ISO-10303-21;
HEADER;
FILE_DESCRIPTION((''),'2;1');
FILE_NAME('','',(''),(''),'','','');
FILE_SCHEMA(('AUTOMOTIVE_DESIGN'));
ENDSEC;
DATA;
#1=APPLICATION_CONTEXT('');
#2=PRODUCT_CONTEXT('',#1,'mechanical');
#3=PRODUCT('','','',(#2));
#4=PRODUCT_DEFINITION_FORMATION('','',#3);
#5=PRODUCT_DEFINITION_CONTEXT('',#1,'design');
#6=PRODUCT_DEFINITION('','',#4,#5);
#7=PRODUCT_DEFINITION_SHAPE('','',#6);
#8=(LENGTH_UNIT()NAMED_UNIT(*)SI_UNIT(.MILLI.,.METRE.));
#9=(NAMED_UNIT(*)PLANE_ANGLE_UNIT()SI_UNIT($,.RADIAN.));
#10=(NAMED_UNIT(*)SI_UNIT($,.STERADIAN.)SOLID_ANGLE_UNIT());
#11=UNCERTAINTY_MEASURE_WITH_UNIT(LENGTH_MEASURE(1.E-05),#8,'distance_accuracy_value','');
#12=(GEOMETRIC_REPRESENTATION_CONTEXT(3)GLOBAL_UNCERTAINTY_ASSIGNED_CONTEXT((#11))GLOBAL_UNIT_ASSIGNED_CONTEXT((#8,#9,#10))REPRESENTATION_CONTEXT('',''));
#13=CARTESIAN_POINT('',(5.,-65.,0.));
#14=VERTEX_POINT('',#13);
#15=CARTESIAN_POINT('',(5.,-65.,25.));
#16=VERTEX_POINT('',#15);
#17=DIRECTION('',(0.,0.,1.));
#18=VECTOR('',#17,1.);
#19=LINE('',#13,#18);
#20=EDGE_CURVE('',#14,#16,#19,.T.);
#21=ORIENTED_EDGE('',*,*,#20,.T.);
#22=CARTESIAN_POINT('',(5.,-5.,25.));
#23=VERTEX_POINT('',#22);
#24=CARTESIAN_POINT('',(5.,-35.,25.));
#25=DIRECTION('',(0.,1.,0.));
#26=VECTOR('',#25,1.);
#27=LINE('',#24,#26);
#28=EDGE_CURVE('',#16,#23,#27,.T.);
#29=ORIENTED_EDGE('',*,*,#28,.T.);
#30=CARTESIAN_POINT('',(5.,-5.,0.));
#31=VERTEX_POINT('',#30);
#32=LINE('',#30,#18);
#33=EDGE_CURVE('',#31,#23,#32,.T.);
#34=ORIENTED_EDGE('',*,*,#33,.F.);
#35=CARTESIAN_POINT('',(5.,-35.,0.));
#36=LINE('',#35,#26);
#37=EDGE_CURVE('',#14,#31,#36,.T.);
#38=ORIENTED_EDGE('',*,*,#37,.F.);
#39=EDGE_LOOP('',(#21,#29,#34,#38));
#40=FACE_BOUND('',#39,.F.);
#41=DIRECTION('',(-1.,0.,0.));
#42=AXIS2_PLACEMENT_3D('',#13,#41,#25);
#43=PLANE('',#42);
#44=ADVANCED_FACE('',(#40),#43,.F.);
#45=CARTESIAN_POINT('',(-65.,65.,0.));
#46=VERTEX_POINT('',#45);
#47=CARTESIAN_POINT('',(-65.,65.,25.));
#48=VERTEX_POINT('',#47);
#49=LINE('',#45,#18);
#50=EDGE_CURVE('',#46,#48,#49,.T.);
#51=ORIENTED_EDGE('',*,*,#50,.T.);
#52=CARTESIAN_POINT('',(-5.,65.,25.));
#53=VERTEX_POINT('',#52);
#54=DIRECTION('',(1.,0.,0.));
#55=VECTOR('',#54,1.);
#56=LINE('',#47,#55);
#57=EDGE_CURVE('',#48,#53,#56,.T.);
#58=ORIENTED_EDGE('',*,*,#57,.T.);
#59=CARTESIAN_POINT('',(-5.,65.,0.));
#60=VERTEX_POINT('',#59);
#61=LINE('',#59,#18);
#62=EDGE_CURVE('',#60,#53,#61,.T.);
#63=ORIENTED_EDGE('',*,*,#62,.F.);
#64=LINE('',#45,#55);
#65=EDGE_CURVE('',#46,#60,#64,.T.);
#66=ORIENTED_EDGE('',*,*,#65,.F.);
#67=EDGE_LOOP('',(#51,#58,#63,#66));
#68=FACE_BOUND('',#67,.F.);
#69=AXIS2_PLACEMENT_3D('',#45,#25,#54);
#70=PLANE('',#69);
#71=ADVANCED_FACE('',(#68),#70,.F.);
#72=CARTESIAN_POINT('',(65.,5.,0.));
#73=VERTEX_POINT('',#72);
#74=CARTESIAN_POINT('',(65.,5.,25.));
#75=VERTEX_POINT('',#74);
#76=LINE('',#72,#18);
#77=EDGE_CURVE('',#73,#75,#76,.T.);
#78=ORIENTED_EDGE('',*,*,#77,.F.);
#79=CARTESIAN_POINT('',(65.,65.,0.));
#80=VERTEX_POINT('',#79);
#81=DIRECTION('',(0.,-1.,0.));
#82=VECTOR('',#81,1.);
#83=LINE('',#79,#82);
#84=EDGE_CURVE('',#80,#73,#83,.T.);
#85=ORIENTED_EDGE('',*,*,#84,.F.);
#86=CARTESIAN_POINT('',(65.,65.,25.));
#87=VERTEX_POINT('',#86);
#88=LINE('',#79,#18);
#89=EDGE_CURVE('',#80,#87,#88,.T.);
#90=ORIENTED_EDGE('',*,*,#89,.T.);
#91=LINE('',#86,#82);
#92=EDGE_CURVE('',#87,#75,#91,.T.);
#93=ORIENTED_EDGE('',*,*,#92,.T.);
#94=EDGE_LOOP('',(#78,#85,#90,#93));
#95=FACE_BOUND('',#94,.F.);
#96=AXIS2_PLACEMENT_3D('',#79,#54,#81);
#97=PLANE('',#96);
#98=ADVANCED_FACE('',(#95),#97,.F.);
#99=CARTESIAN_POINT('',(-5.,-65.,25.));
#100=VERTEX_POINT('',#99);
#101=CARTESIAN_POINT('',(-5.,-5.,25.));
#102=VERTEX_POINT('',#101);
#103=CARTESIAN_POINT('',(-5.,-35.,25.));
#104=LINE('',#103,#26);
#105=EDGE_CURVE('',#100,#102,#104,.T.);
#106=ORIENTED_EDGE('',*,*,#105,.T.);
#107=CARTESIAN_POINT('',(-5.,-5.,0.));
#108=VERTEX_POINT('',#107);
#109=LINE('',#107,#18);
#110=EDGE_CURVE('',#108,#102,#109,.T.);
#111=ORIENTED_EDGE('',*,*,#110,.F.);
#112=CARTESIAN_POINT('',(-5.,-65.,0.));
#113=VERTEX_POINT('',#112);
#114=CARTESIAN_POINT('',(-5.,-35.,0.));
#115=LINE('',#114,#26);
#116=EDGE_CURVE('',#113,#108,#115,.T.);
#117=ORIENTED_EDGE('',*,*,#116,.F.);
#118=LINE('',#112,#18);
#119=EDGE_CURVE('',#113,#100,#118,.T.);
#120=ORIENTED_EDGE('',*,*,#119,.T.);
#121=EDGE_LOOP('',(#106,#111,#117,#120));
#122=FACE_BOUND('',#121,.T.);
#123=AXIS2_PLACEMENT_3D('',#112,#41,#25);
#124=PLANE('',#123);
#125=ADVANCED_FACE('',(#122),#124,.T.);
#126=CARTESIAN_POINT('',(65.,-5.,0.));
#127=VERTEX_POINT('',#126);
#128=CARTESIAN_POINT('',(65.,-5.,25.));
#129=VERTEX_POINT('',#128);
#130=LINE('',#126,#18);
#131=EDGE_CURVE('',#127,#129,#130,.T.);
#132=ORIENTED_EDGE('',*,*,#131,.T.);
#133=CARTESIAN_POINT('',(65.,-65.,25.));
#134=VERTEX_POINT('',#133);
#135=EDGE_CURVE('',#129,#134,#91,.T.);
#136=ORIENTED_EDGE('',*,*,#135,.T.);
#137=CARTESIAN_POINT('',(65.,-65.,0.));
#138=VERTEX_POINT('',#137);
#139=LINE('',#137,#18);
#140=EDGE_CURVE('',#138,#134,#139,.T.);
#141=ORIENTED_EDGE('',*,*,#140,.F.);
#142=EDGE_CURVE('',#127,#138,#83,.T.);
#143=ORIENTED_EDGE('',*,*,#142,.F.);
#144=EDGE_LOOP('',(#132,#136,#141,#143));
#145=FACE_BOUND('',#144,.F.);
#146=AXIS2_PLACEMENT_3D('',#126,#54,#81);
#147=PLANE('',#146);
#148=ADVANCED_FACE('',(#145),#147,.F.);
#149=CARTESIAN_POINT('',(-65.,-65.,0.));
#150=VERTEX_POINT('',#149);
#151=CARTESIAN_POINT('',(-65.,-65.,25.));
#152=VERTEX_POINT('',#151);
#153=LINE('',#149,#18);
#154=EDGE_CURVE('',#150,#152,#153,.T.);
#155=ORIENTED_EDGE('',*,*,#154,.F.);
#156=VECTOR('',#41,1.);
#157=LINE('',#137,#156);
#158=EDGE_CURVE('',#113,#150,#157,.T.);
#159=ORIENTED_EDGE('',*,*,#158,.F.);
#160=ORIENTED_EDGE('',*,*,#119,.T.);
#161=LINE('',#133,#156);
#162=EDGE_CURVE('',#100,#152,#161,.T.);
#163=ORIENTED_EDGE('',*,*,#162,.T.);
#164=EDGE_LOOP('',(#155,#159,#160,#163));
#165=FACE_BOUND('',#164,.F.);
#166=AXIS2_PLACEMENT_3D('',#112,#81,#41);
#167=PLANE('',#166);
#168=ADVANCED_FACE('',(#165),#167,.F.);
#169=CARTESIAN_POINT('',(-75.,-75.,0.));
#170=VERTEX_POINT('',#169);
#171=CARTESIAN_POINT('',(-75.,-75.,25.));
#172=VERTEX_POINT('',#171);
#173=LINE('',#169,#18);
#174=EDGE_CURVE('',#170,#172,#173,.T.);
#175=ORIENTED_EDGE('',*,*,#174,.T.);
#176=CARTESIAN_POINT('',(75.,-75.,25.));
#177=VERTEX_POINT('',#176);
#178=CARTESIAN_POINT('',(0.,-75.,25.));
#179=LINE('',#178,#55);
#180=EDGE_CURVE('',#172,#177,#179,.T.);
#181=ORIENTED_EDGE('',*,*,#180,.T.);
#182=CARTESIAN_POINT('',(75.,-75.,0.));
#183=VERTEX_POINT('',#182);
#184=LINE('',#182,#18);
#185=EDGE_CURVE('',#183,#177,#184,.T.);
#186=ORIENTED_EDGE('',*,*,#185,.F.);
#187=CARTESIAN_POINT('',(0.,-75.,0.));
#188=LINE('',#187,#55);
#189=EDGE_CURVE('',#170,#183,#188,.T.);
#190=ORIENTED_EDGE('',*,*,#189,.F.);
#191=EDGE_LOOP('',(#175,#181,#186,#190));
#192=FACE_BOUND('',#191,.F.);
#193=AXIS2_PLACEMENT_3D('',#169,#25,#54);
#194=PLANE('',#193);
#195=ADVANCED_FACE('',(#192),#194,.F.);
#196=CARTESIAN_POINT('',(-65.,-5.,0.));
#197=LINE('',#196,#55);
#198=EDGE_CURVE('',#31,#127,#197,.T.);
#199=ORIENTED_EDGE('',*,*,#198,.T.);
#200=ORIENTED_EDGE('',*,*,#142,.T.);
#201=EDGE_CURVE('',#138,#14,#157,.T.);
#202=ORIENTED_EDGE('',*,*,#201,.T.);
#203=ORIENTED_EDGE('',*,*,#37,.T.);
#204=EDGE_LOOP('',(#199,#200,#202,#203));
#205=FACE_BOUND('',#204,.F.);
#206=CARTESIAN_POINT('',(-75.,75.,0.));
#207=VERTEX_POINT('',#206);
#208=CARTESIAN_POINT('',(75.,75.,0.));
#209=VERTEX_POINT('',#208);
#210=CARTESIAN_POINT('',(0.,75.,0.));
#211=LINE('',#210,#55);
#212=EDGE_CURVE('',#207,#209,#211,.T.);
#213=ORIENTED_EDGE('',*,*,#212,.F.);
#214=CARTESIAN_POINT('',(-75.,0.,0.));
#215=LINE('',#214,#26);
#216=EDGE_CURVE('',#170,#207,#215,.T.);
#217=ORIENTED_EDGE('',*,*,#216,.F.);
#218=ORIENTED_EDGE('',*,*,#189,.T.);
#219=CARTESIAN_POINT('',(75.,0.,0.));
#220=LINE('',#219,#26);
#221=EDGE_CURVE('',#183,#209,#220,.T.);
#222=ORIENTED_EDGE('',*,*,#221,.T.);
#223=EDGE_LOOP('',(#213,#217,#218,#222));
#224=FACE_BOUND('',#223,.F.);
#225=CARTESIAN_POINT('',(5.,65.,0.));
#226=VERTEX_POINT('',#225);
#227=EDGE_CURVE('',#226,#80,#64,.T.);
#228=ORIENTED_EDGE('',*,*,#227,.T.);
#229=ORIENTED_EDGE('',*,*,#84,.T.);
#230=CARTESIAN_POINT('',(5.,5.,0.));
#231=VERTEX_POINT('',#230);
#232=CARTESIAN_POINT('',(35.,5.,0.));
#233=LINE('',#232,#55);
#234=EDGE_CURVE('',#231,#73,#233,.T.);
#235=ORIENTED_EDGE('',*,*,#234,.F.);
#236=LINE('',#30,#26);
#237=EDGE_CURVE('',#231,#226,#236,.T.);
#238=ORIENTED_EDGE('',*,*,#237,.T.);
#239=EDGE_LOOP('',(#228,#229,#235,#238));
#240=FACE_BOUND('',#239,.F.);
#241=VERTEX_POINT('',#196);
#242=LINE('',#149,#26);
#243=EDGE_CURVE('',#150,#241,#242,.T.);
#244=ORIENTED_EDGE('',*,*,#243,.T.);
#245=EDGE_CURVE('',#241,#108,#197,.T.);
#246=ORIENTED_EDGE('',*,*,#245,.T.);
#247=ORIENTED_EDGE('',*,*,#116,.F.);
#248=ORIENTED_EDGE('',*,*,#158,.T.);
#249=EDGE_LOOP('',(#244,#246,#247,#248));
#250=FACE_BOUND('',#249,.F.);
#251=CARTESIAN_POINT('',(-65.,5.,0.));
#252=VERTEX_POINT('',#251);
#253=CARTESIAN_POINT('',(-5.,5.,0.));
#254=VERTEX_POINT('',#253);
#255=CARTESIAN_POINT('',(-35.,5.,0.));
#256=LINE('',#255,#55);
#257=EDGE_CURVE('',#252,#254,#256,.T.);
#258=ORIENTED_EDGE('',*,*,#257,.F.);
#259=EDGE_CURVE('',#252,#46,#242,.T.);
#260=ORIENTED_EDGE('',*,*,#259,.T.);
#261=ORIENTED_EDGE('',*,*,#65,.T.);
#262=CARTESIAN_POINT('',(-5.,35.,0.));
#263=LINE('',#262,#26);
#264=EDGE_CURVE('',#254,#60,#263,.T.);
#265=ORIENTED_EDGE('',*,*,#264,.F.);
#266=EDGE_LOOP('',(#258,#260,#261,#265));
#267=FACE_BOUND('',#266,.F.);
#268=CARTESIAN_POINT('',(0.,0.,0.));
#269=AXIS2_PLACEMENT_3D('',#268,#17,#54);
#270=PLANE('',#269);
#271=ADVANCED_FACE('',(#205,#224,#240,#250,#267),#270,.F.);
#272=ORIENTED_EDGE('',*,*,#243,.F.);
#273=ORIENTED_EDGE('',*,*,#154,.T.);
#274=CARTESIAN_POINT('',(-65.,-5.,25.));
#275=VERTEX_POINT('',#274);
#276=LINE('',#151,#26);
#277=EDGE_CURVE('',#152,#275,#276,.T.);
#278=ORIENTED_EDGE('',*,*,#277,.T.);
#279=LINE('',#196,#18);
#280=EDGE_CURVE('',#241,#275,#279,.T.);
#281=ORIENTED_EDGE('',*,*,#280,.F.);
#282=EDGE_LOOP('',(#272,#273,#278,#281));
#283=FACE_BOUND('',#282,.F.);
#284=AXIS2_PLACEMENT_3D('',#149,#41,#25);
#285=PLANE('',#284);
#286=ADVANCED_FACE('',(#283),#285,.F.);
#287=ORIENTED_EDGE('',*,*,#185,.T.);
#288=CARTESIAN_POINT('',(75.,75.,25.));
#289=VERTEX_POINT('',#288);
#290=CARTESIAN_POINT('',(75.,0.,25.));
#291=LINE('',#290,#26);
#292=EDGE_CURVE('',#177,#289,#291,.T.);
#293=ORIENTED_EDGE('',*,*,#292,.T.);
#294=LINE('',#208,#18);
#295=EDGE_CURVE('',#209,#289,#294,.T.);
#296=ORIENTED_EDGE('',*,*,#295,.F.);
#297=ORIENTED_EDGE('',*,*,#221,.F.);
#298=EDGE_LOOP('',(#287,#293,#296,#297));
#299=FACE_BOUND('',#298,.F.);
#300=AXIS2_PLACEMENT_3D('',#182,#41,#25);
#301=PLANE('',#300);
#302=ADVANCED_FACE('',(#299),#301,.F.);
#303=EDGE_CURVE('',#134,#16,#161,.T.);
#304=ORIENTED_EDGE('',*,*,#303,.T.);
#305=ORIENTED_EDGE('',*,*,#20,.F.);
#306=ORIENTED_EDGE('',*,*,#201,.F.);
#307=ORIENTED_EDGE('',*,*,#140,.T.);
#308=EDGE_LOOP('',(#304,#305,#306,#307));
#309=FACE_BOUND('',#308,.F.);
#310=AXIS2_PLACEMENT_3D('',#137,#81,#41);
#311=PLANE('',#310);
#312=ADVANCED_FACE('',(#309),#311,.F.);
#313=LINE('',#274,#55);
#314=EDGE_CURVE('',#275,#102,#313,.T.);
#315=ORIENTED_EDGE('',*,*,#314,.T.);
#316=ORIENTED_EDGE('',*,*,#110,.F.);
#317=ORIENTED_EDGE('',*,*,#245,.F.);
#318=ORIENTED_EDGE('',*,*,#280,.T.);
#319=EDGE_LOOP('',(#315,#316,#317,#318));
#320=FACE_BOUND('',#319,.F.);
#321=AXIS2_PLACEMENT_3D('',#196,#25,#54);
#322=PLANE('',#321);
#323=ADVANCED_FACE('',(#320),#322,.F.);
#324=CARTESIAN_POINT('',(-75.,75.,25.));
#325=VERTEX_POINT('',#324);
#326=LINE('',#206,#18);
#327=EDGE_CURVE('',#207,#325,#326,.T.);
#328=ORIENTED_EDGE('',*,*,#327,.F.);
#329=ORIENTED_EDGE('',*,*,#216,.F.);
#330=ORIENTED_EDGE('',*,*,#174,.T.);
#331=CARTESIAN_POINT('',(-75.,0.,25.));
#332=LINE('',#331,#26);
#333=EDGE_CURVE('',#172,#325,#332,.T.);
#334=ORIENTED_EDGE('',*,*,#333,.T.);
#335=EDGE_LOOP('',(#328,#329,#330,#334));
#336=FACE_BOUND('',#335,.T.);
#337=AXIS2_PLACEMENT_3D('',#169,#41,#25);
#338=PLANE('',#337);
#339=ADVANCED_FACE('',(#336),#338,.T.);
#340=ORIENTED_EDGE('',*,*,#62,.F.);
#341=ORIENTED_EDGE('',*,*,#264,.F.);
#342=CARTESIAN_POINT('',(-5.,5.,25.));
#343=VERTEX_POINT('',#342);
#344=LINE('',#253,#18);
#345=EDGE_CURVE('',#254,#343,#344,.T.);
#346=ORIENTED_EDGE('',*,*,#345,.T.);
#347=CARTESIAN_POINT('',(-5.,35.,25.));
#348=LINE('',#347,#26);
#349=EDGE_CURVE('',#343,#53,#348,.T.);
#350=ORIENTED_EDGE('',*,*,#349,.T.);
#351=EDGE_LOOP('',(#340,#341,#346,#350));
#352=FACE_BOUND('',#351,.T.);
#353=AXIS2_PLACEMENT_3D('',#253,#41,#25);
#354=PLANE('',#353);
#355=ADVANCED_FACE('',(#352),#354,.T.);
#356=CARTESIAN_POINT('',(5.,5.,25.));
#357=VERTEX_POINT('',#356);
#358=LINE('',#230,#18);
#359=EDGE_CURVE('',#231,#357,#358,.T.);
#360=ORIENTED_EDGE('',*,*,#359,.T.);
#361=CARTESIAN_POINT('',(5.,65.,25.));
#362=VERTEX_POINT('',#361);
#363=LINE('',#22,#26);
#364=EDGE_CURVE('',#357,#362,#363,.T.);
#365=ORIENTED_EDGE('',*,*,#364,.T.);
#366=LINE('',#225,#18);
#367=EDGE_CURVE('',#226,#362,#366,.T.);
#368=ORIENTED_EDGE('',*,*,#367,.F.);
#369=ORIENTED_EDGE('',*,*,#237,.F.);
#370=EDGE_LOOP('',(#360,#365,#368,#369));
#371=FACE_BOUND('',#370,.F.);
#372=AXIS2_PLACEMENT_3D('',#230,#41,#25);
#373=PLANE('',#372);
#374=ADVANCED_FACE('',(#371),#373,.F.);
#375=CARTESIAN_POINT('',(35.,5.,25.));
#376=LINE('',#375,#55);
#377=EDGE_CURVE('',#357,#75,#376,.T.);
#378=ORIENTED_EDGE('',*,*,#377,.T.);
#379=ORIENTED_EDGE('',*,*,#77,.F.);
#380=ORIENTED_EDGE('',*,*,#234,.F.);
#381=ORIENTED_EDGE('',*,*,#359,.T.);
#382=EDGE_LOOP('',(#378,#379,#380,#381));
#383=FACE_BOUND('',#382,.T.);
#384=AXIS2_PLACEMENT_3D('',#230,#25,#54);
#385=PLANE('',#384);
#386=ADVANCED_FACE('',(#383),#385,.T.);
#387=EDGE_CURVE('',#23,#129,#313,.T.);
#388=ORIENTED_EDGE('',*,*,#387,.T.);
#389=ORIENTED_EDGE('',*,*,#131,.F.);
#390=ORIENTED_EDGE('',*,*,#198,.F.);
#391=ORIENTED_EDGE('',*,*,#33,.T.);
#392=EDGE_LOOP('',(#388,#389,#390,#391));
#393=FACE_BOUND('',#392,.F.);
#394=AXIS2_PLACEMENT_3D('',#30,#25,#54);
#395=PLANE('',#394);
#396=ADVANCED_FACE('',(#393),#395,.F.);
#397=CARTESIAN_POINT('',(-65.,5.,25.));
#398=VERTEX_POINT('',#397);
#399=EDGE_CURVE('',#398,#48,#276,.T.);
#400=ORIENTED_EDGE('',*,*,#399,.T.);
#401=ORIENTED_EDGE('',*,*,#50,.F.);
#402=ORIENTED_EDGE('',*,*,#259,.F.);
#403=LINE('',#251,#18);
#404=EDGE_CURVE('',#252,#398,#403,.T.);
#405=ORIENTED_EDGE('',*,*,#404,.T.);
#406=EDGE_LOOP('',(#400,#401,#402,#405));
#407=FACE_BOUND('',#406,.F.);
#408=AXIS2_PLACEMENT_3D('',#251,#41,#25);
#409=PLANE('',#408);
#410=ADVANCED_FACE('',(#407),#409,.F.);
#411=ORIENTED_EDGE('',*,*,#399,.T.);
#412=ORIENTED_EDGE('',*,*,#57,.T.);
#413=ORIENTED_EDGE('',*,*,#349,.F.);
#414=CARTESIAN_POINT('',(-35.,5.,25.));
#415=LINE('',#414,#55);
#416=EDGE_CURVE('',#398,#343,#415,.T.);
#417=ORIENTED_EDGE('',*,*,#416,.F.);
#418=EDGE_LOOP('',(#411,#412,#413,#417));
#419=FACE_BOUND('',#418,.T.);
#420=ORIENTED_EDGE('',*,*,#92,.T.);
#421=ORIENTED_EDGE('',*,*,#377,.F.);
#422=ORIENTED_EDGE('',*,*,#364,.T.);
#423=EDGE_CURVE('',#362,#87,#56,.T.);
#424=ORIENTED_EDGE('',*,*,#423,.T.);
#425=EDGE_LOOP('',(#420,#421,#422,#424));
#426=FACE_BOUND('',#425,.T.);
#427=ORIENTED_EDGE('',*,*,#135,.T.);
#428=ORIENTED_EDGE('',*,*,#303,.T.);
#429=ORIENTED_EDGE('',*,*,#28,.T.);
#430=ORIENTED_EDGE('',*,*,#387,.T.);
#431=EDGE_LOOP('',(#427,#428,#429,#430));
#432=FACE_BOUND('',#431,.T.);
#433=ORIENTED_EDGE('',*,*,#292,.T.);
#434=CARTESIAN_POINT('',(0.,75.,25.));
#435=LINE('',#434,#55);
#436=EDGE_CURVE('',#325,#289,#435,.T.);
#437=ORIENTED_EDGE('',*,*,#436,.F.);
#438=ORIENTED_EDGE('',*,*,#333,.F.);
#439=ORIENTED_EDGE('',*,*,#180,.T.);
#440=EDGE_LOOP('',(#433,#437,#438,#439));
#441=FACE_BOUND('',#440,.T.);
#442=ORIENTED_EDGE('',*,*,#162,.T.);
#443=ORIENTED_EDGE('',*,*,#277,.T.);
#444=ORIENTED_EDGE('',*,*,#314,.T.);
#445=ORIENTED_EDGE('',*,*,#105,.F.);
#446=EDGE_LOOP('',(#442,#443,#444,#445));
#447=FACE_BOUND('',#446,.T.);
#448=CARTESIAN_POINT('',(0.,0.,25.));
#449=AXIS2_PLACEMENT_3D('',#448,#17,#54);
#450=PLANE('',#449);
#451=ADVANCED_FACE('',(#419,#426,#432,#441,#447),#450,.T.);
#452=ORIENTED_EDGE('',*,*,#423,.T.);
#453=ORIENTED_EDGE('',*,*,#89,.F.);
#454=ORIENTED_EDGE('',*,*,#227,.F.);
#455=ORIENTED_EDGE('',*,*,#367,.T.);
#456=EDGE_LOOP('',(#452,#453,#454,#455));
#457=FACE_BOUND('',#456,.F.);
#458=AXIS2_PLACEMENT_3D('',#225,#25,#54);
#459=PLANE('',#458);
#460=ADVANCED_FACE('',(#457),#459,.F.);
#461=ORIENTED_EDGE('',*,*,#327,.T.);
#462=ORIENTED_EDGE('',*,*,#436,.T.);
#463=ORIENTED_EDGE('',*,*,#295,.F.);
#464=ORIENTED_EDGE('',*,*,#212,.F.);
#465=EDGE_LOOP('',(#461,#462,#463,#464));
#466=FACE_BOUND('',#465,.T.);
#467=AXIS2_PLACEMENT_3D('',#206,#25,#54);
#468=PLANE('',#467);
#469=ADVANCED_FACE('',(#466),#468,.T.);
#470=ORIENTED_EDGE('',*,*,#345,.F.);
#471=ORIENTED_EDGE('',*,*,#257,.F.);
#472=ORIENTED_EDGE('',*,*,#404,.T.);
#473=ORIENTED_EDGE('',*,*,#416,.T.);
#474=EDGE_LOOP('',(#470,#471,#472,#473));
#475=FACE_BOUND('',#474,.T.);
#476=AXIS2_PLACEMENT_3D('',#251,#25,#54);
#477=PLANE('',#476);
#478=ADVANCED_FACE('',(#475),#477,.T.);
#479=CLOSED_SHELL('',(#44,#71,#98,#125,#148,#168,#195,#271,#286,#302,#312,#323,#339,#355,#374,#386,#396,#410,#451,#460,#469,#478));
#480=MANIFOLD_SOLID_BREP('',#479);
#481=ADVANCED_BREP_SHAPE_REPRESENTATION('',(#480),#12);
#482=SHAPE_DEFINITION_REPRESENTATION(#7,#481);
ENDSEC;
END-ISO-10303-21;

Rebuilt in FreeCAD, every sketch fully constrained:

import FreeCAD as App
import Part
import Sketcher


def add_polygon(sketch, points):
    """Adds a closed chain of lines whose ends are joined by coincident constraints."""
    first, n = sketch.GeometryCount, len(points)
    for a, b in zip(points, points[1:] + points[:1]):
        sketch.addGeometry(Part.LineSegment(App.Vector(*a, 0), App.Vector(*b, 0)), False)
    for i in range(n):
        sketch.addConstraint(Sketcher.Constraint("Coincident", first + i, 2, first + (i + 1) % n, 1))

doc = App.newDocument("Part")
body = doc.addObject("PartDesign::Body", "Body")

# Sketch on XY plane
sketch1 = body.newObject("Sketcher::SketchObject", "Sketch")
sketch1.AttachmentSupport = (doc.getObject("XY_Plane"), [""])
sketch1.MapMode = "FlatFace"
add_polygon(sketch1, [(-75, 75), (-75, -75), (75, -75), (75, 75)])  # lines 0-3
add_polygon(sketch1, [(-5, 65), (-5, 5), (-65, 5), (-65, 65)])  # lines 4-7
add_polygon(sketch1, [(-65, -5), (-5, -5), (-5, -65), (-65, -65)])  # lines 8-11
add_polygon(sketch1, [(5, -5), (65, -5), (65, -65), (5, -65)])  # lines 12-15
add_polygon(sketch1, [(5, 5), (5, 65), (65, 65), (65, 5)])  # lines 16-19
sketch1.addConstraint(Sketcher.Constraint("Vertical", 0))
sketch1.addConstraint(Sketcher.Constraint("Horizontal", 1))
sketch1.addConstraint(Sketcher.Constraint("Vertical", 2))
sketch1.addConstraint(Sketcher.Constraint("Horizontal", 3))
sketch1.addConstraint(Sketcher.Constraint("Vertical", 4))
sketch1.addConstraint(Sketcher.Constraint("Horizontal", 5))
sketch1.addConstraint(Sketcher.Constraint("Vertical", 6))
sketch1.addConstraint(Sketcher.Constraint("Horizontal", 7))
sketch1.addConstraint(Sketcher.Constraint("Horizontal", 8))
sketch1.addConstraint(Sketcher.Constraint("Vertical", 9))
sketch1.addConstraint(Sketcher.Constraint("Horizontal", 10))
sketch1.addConstraint(Sketcher.Constraint("Vertical", 11))
sketch1.addConstraint(Sketcher.Constraint("Horizontal", 12))
sketch1.addConstraint(Sketcher.Constraint("Vertical", 13))
sketch1.addConstraint(Sketcher.Constraint("Horizontal", 14))
sketch1.addConstraint(Sketcher.Constraint("Vertical", 15))
sketch1.addConstraint(Sketcher.Constraint("Vertical", 16))
sketch1.addConstraint(Sketcher.Constraint("Horizontal", 17))
sketch1.addConstraint(Sketcher.Constraint("Vertical", 18))
sketch1.addConstraint(Sketcher.Constraint("Horizontal", 19))
sketch1.addConstraint(Sketcher.Constraint("Symmetric", 0, 2, 2, 2, -1, 1))
sketch1.addConstraint(Sketcher.Constraint("Symmetric", 5, 2, 12, 2, -1, 1))
sketch1.addConstraint(Sketcher.Constraint("Symmetric", 7, 2, 14, 2, -1, 1))
sketch1.addConstraint(Sketcher.Constraint("Symmetric", 9, 2, 16, 2, -1, 1))
sketch1.addConstraint(Sketcher.Constraint("Symmetric", 11, 2, 18, 2, -1, 1))
sketch1.addConstraint(Sketcher.Constraint("Symmetric", 11, 2, 12, 2, -2))
sketch1.addConstraint(Sketcher.Constraint("Symmetric", 9, 2, 14, 2, -2))
sketch1.addConstraint(Sketcher.Constraint("Equal", 3, 0))
sketch1.addConstraint(Sketcher.Constraint("Equal", 19, 4))
sketch1.addConstraint(Sketcher.Constraint("DistanceX", 1, 1, 1, 2, 150.0))
sketch1.addConstraint(Sketcher.Constraint("DistanceX", 5, 2, 5, 1, 60.0))
sketch1.addConstraint(Sketcher.Constraint("DistanceX", 4, 2, -1, 1, 5.0))
sketch1.addConstraint(Sketcher.Constraint("DistanceY", -1, 1, 4, 2, 5.0))
pad1 = body.newObject("PartDesign::Pad", "Pad")
pad1.Profile = sketch1
pad1.Length = 25

doc.recompute()
